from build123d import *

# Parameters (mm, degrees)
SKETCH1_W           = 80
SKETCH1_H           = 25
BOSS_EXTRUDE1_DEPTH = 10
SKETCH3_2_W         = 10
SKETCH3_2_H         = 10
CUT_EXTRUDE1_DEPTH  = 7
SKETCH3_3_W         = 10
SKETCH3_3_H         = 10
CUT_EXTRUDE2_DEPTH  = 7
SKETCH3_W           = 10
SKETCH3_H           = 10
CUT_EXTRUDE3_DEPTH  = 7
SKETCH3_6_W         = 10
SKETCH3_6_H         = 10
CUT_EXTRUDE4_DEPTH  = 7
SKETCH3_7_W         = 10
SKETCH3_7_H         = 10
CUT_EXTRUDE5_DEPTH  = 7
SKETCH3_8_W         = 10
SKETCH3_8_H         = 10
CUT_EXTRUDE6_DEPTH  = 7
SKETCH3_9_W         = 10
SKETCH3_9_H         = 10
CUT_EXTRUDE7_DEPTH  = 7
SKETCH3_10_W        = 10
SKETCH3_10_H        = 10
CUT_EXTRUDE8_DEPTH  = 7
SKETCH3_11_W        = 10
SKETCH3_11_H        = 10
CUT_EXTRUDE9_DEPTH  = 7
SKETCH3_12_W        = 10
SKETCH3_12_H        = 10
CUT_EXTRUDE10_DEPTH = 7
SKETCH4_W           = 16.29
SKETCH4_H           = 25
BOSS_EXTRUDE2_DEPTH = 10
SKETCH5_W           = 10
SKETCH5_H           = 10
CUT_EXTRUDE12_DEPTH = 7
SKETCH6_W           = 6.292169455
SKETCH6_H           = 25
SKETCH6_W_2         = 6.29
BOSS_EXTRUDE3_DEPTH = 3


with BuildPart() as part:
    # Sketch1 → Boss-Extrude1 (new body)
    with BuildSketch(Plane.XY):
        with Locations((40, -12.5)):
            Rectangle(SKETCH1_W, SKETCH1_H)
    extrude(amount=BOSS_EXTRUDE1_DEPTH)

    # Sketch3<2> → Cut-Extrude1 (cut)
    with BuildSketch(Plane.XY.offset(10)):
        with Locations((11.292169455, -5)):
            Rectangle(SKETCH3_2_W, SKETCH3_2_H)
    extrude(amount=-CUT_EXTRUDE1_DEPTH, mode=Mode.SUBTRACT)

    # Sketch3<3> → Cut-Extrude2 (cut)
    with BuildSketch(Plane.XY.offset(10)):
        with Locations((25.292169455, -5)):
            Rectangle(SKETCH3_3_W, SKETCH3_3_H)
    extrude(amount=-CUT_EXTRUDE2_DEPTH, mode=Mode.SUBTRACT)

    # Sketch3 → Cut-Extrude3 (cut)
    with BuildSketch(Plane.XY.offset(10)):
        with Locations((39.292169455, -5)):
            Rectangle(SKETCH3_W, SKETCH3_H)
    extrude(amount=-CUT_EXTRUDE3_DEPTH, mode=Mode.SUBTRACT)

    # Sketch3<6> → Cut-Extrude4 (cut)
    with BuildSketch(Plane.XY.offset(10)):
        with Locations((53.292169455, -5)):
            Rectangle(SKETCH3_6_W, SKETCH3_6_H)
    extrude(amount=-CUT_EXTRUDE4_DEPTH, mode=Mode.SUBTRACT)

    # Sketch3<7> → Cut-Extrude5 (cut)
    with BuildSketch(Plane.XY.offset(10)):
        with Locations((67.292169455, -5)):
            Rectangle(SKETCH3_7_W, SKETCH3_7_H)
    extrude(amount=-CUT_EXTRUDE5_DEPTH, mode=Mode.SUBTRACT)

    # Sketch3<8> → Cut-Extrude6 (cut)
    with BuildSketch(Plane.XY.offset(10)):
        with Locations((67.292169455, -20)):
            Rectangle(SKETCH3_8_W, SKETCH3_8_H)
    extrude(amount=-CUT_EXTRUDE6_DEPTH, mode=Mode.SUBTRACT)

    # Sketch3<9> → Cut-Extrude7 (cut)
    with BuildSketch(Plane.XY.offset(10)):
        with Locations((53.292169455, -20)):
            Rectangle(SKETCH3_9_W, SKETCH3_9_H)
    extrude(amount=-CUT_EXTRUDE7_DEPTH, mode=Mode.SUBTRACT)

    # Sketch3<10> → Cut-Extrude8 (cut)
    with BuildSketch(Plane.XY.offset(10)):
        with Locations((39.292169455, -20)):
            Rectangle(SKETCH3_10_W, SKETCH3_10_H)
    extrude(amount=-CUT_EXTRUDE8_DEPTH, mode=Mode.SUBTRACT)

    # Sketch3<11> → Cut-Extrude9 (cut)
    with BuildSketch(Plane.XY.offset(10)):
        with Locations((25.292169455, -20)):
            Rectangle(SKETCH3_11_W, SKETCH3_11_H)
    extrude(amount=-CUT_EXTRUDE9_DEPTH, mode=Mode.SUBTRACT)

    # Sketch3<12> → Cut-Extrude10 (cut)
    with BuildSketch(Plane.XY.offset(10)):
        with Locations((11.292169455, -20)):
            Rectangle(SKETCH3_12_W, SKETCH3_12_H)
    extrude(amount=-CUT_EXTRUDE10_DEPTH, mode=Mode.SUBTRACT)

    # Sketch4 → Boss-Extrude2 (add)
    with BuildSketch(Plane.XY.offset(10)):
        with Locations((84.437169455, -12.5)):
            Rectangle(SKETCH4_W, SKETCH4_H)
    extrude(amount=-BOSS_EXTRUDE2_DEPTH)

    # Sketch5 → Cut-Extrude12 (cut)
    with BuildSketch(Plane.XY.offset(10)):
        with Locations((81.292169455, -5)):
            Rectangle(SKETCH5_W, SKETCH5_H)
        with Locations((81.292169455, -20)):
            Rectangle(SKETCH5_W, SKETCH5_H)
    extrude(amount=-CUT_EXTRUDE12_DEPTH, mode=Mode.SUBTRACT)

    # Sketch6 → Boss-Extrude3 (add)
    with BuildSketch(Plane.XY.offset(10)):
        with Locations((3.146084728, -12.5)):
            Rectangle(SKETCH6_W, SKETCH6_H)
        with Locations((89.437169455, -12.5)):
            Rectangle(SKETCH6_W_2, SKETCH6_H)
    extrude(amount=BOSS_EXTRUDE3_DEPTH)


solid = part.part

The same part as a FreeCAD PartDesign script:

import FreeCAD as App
import Part
import Sketcher
Q = App.Units.Quantity


def add_polygon(sketch, points):
    """Adds a closed chain of lines whose ends are joined by coincident constraints."""
    first, n = sketch.GeometryCount, len(points)
    for a, b in zip(points, points[1:] + points[:1]):
        sketch.addGeometry(Part.LineSegment(App.Vector(*a, 0), App.Vector(*b, 0)), False)
    for i in range(n):
        sketch.addConstraint(Sketcher.Constraint("Coincident", first + i, 2, first + (i + 1) % n, 1))

doc = App.newDocument("Part")
body = doc.addObject("PartDesign::Body", "Body")

# Sketch on XY plane
sketch1 = doc.addObject("Sketcher::SketchObject", "Sketch")
body.addObject(sketch1)
sketch1.AttachmentSupport = (doc.XY_Plane, [""])
sketch1.MapMode = "FlatFace"
add_polygon(sketch1, [(0, 0), (0, -25), (80, -25), (80, 0)])  # lines 0-3
sketch1.addConstraint(Sketcher.Constraint("Vertical", 0))
sketch1.addConstraint(Sketcher.Constraint("Horizontal", 1))
sketch1.addConstraint(Sketcher.Constraint("Vertical", 2))
sketch1.addConstraint(Sketcher.Constraint("Horizontal", 3))
sketch1.addConstraint(Sketcher.Constraint("Coincident", 3, 2, -1, 1))
sketch1.addConstraint(Sketcher.Constraint("DistanceX", 1, 1, 1, 2, Q("80 mm")))
sketch1.addConstraint(Sketcher.Constraint("DistanceY", 0, 2, 0, 1, Q("25 mm")))
pad1 = doc.addObject("PartDesign::Pad", "Pad")
body.addObject(pad1)
pad1.Profile = sketch1
pad1.Length = 10

# Sketch on XY plane
sketch2 = doc.addObject("Sketcher::SketchObject", "Sketch001")
body.addObject(sketch2)
sketch2.AttachmentSupport = (doc.XY_Plane, [""])
sketch2.MapMode = "FlatFace"
sketch2.AttachmentOffset = App.Placement(App.Vector(0, 0, 10), App.Rotation())
add_polygon(sketch2, [(6, 0), (6, -10), (16, -10), (16, 0)])  # lines 0-3
sketch2.addConstraint(Sketcher.Constraint("Vertical", 0))
sketch2.addConstraint(Sketcher.Constraint("Horizontal", 1))
sketch2.addConstraint(Sketcher.Constraint("Vertical", 2))
sketch2.addConstraint(Sketcher.Constraint("Horizontal", 3))
sketch2.addConstraint(Sketcher.Constraint("PointOnObject", 2, 2, -1))
sketch2.addConstraint(Sketcher.Constraint("Equal", 3, 0))
sketch2.addConstraint(Sketcher.Constraint("DistanceX", 1, 1, 1, 2, Q("10 mm")))
sketch2.addConstraint(Sketcher.Constraint("DistanceX", -1, 1, 0, 2, Q("6.292169 mm")))
pocket1 = doc.addObject("PartDesign::Pocket", "Pocket")
body.addObject(pocket1)
pocket1.Profile = sketch2
pocket1.Length = 7

# Sketch on XY plane
sketch3 = doc.addObject("Sketcher::SketchObject", "Sketch002")
body.addObject(sketch3)
sketch3.AttachmentSupport = (doc.XY_Plane, [""])
sketch3.MapMode = "FlatFace"
sketch3.AttachmentOffset = App.Placement(App.Vector(0, 0, 10), App.Rotation())
add_polygon(sketch3, [(20, 0), (20, -10), (30, -10), (30, 0)])  # lines 0-3
sketch3.addConstraint(Sketcher.Constraint("Vertical", 0))
sketch3.addConstraint(Sketcher.Constraint("Horizontal", 1))
sketch3.addConstraint(Sketcher.Constraint("Vertical", 2))
sketch3.addConstraint(Sketcher.Constraint("Horizontal", 3))
sketch3.addConstraint(Sketcher.Constraint("PointOnObject", 2, 2, -1))
sketch3.addConstraint(Sketcher.Constraint("Equal", 3, 0))
sketch3.addConstraint(Sketcher.Constraint("DistanceX", 1, 1, 1, 2, Q("10 mm")))
sketch3.addConstraint(Sketcher.Constraint("DistanceX", -1, 1, 0, 2, Q("20.292169 mm")))
pocket2 = doc.addObject("PartDesign::Pocket", "Pocket001")
body.addObject(pocket2)
pocket2.Profile = sketch3
pocket2.Length = 7

# Sketch on XY plane
sketch4 = doc.addObject("Sketcher::SketchObject", "Sketch003")
body.addObject(sketch4)
sketch4.AttachmentSupport = (doc.XY_Plane, [""])
sketch4.MapMode = "FlatFace"
sketch4.AttachmentOffset = App.Placement(App.Vector(0, 0, 10), App.Rotation())
add_polygon(sketch4, [(34, 0), (34, -10), (44, -10), (44, 0)])  # lines 0-3
sketch4.addConstraint(Sketcher.Constraint("Vertical", 0))
sketch4.addConstraint(Sketcher.Constraint("Horizontal", 1))
sketch4.addConstraint(Sketcher.Constraint("Vertical", 2))
sketch4.addConstraint(Sketcher.Constraint("Horizontal", 3))
sketch4.addConstraint(Sketcher.Constraint("PointOnObject", 2, 2, -1))
sketch4.addConstraint(Sketcher.Constraint("Equal", 3, 0))
sketch4.addConstraint(Sketcher.Constraint("DistanceX", 1, 1, 1, 2, Q("10 mm")))
sketch4.addConstraint(Sketcher.Constraint("DistanceX", -1, 1, 0, 2, Q("34.292169 mm")))
pocket3 = doc.addObject("PartDesign::Pocket", "Pocket002")
body.addObject(pocket3)
pocket3.Profile = sketch4
pocket3.Length = 7

# Sketch on XY plane
sketch5 = doc.addObject("Sketcher::SketchObject", "Sketch004")
body.addObject(sketch5)
sketch5.AttachmentSupport = (doc.XY_Plane, [""])
sketch5.MapMode = "FlatFace"
sketch5.AttachmentOffset = App.Placement(App.Vector(0, 0, 10), App.Rotation())
add_polygon(sketch5, [(48, 0), (48, -10), (58, -10), (58, 0)])  # lines 0-3
sketch5.addConstraint(Sketcher.Constraint("Vertical", 0))
sketch5.addConstraint(Sketcher.Constraint("Horizontal", 1))
sketch5.addConstraint(Sketcher.Constraint("Vertical", 2))
sketch5.addConstraint(Sketcher.Constraint("Horizontal", 3))
sketch5.addConstraint(Sketcher.Constraint("PointOnObject", 2, 2, -1))
sketch5.addConstraint(Sketcher.Constraint("Equal", 3, 0))
sketch5.addConstraint(Sketcher.Constraint("DistanceX", 1, 1, 1, 2, Q("10 mm")))
sketch5.addConstraint(Sketcher.Constraint("DistanceX", -1, 1, 0, 2, Q("48.292169 mm")))
pocket4 = doc.addObject("PartDesign::Pocket", "Pocket003")
body.addObject(pocket4)
pocket4.Profile = sketch5
pocket4.Length = 7

# Sketch on XY plane
sketch6 = doc.addObject("Sketcher::SketchObject", "Sketch005")
body.addObject(sketch6)
sketch6.AttachmentSupport = (doc.XY_Plane, [""])
sketch6.MapMode = "FlatFace"
sketch6.AttachmentOffset = App.Placement(App.Vector(0, 0, 10), App.Rotation())
add_polygon(sketch6, [(62, 0), (62, -10), (72, -10), (72, 0)])  # lines 0-3
sketch6.addConstraint(Sketcher.Constraint("Vertical", 0))
sketch6.addConstraint(Sketcher.Constraint("Horizontal", 1))
sketch6.addConstraint(Sketcher.Constraint("Vertical", 2))
sketch6.addConstraint(Sketcher.Constraint("Horizontal", 3))
sketch6.addConstraint(Sketcher.Constraint("PointOnObject", 2, 2, -1))
sketch6.addConstraint(Sketcher.Constraint("Equal", 3, 0))
sketch6.addConstraint(Sketcher.Constraint("DistanceX", 1, 1, 1, 2, Q("10 mm")))
sketch6.addConstraint(Sketcher.Constraint("DistanceX", -1, 1, 0, 2, Q("62.292169 mm")))
pocket5 = doc.addObject("PartDesign::Pocket", "Pocket004")
body.addObject(pocket5)
pocket5.Profile = sketch6
pocket5.Length = 7

# Sketch on XY plane
sketch7 = doc.addObject("Sketcher::SketchObject", "Sketch006")
body.addObject(sketch7)
sketch7.AttachmentSupport = (doc.XY_Plane, [""])
sketch7.MapMode = "FlatFace"
sketch7.AttachmentOffset = App.Placement(App.Vector(0, 0, 10), App.Rotation())
add_polygon(sketch7, [(62, -15), (62, -25), (72, -25), (72, -15)])  # lines 0-3
sketch7.addConstraint(Sketcher.Constraint("Vertical", 0))
sketch7.addConstraint(Sketcher.Constraint("Horizontal", 1))
sketch7.addConstraint(Sketcher.Constraint("Vertical", 2))
sketch7.addConstraint(Sketcher.Constraint("Horizontal", 3))
sketch7.addConstraint(Sketcher.Constraint("Equal", 3, 0))
sketch7.addConstraint(Sketcher.Constraint("DistanceX", 1, 1, 1, 2, Q("10 mm")))
sketch7.addConstraint(Sketcher.Constraint("DistanceY", 0, 2, -1, 1, Q("25 mm")))
sketch7.addConstraint(Sketcher.Constraint("DistanceX", -1, 1, 0, 2, Q("62.292169 mm")))
pocket6 = doc.addObject("PartDesign::Pocket", "Pocket005")
body.addObject(pocket6)
pocket6.Profile = sketch7
pocket6.Length = 7

# Sketch on XY plane
sketch8 = doc.addObject("Sketcher::SketchObject", "Sketch007")
body.addObject(sketch8)
sketch8.AttachmentSupport = (doc.XY_Plane, [""])
sketch8.MapMode = "FlatFace"
sketch8.AttachmentOffset = App.Placement(App.Vector(0, 0, 10), App.Rotation())
add_polygon(sketch8, [(48, -15), (48, -25), (58, -25), (58, -15)])  # lines 0-3
sketch8.addConstraint(Sketcher.Constraint("Vertical", 0))
sketch8.addConstraint(Sketcher.Constraint("Horizontal", 1))
sketch8.addConstraint(Sketcher.Constraint("Vertical", 2))
sketch8.addConstraint(Sketcher.Constraint("Horizontal", 3))
sketch8.addConstraint(Sketcher.Constraint("Equal", 3, 0))
sketch8.addConstraint(Sketcher.Constraint("DistanceX", 1, 1, 1, 2, Q("10 mm")))
sketch8.addConstraint(Sketcher.Constraint("DistanceY", 0, 2, -1, 1, Q("25 mm")))
sketch8.addConstraint(Sketcher.Constraint("DistanceX", -1, 1, 0, 2, Q("48.292169 mm")))
pocket7 = doc.addObject("PartDesign::Pocket", "Pocket006")
body.addObject(pocket7)
pocket7.Profile = sketch8
pocket7.Length = 7

# Sketch on XY plane
sketch9 = doc.addObject("Sketcher::SketchObject", "Sketch008")
body.addObject(sketch9)
sketch9.AttachmentSupport = (doc.XY_Plane, [""])
sketch9.MapMode = "FlatFace"
sketch9.AttachmentOffset = App.Placement(App.Vector(0, 0, 10), App.Rotation())
add_polygon(sketch9, [(34, -15), (34, -25), (44, -25), (44, -15)])  # lines 0-3
sketch9.addConstraint(Sketcher.Constraint("Vertical", 0))
sketch9.addConstraint(Sketcher.Constraint("Horizontal", 1))
sketch9.addConstraint(Sketcher.Constraint("Vertical", 2))
sketch9.addConstraint(Sketcher.Constraint("Horizontal", 3))
sketch9.addConstraint(Sketcher.Constraint("Equal", 3, 0))
sketch9.addConstraint(Sketcher.Constraint("DistanceX", 1, 1, 1, 2, Q("10 mm")))
sketch9.addConstraint(Sketcher.Constraint("DistanceY", 0, 2, -1, 1, Q("25 mm")))
sketch9.addConstraint(Sketcher.Constraint("DistanceX", -1, 1, 0, 2, Q("34.292169 mm")))
pocket8 = doc.addObject("PartDesign::Pocket", "Pocket007")
body.addObject(pocket8)
pocket8.Profile = sketch9
pocket8.Length = 7

# Sketch on XY plane
sketch10 = doc.addObject("Sketcher::SketchObject", "Sketch009")
body.addObject(sketch10)
sketch10.AttachmentSupport = (doc.XY_Plane, [""])
sketch10.MapMode = "FlatFace"
sketch10.AttachmentOffset = App.Placement(App.Vector(0, 0, 10), App.Rotation())
add_polygon(sketch10, [(20, -15), (20, -25), (30, -25), (30, -15)])  # lines 0-3
sketch10.addConstraint(Sketcher.Constraint("Vertical", 0))
sketch10.addConstraint(Sketcher.Constraint("Horizontal", 1))
sketch10.addConstraint(Sketcher.Constraint("Vertical", 2))
sketch10.addConstraint(Sketcher.Constraint("Horizontal", 3))
sketch10.addConstraint(Sketcher.Constraint("Equal", 3, 0))
sketch10.addConstraint(Sketcher.Constraint("DistanceX", 1, 1, 1, 2, Q("10 mm")))
sketch10.addConstraint(Sketcher.Constraint("DistanceY", 0, 2, -1, 1, Q("25 mm")))
sketch10.addConstraint(Sketcher.Constraint("DistanceX", -1, 1, 0, 2, Q("20.292169 mm")))
pocket9 = doc.addObject("PartDesign::Pocket", "Pocket008")
body.addObject(pocket9)
pocket9.Profile = sketch10
pocket9.Length = 7

# Sketch on XY plane
sketch11 = doc.addObject("Sketcher::SketchObject", "Sketch010")
body.addObject(sketch11)
sketch11.AttachmentSupport = (doc.XY_Plane, [""])
sketch11.MapMode = "FlatFace"
sketch11.AttachmentOffset = App.Placement(App.Vector(0, 0, 10), App.Rotation())
add_polygon(sketch11, [(6, -15), (6, -25), (16, -25), (16, -15)])  # lines 0-3
sketch11.addConstraint(Sketcher.Constraint("Vertical", 0))
sketch11.addConstraint(Sketcher.Constraint("Horizontal", 1))
sketch11.addConstraint(Sketcher.Constraint("Vertical", 2))
sketch11.addConstraint(Sketcher.Constraint("Horizontal", 3))
sketch11.addConstraint(Sketcher.Constraint("Equal", 3, 0))
sketch11.addConstraint(Sketcher.Constraint("DistanceX", 1, 1, 1, 2, Q("10 mm")))
sketch11.addConstraint(Sketcher.Constraint("DistanceY", 0, 2, -1, 1, Q("25 mm")))
sketch11.addConstraint(Sketcher.Constraint("DistanceX", -1, 1, 0, 2, Q("6.292169 mm")))
pocket10 = doc.addObject("PartDesign::Pocket", "Pocket009")
body.addObject(pocket10)
pocket10.Profile = sketch11
pocket10.Length = 7

# Sketch on XY plane
sketch12 = doc.addObject("Sketcher::SketchObject", "Sketch011")
body.addObject(sketch12)
sketch12.AttachmentSupport = (doc.XY_Plane, [""])
sketch12.MapMode = "FlatFace"
sketch12.AttachmentOffset = App.Placement(App.Vector(0, 0, 10), App.Rotation())
add_polygon(sketch12, [(76, 0), (76, -25), (93, -25), (93, 0)])  # lines 0-3
sketch12.addConstraint(Sketcher.Constraint("Vertical", 0))
sketch12.addConstraint(Sketcher.Constraint("Horizontal", 1))
sketch12.addConstraint(Sketcher.Constraint("Vertical", 2))
sketch12.addConstraint(Sketcher.Constraint("Horizontal", 3))
sketch12.addConstraint(Sketcher.Constraint("PointOnObject", 2, 2, -1))
sketch12.addConstraint(Sketcher.Constraint("DistanceY", 0, 2, 0, 1, Q("25 mm")))
sketch12.addConstraint(Sketcher.Constraint("DistanceX", 1, 1, 1, 2, Q("16.29 mm")))
sketch12.addConstraint(Sketcher.Constraint("DistanceX", -1, 1, 0, 2, Q("76.292169 mm")))
pad2 = doc.addObject("PartDesign::Pad", "Pad001")
body.addObject(pad2)
pad2.Profile = sketch12
pad2.Length = 10
pad2.Reversed = True

# Sketch on XY plane
sketch13 = doc.addObject("Sketcher::SketchObject", "Sketch012")
body.addObject(sketch13)
sketch13.AttachmentSupport = (doc.XY_Plane, [""])
sketch13.MapMode = "FlatFace"
sketch13.AttachmentOffset = App.Placement(App.Vector(0, 0, 10), App.Rotation())
add_polygon(sketch13, [(76, 0), (76, -10), (86, -10), (86, 0)])  # lines 0-3
add_polygon(sketch13, [(76, -15), (76, -25), (86, -25), (86, -15)])  # lines 4-7
sketch13.addConstraint(Sketcher.Constraint("Vertical", 0))
sketch13.addConstraint(Sketcher.Constraint("Horizontal", 1))
sketch13.addConstraint(Sketcher.Constraint("Vertical", 2))
sketch13.addConstraint(Sketcher.Constraint("Horizontal", 3))
sketch13.addConstraint(Sketcher.Constraint("Vertical", 4))
sketch13.addConstraint(Sketcher.Constraint("Horizontal", 5))
sketch13.addConstraint(Sketcher.Constraint("Vertical", 6))
sketch13.addConstraint(Sketcher.Constraint("Horizontal", 7))
sketch13.addConstraint(Sketcher.Constraint("PointOnObject", 2, 2, -1))
sketch13.addConstraint(Sketcher.Constraint("Vertical", 3, 2, 4, 2))
sketch13.addConstraint(Sketcher.Constraint("Vertical", 2, 2, 5, 2))
sketch13.addConstraint(Sketcher.Constraint("Equal", 7, 0))
sketch13.addConstraint(Sketcher.Constraint("Equal", 2, 4))
sketch13.addConstraint(Sketcher.Constraint("DistanceX", 1, 1, 1, 2, Q("10 mm")))
sketch13.addConstraint(Sketcher.Constraint("DistanceY", 4, 2, -1, 1, Q("25 mm")))
sketch13.addConstraint(Sketcher.Constraint("DistanceX", -1, 1, 0, 2, Q("76.292169 mm")))
pocket11 = doc.addObject("PartDesign::Pocket", "Pocket010")
body.addObject(pocket11)
pocket11.Profile = sketch13
pocket11.Length = 7

# Sketch on XY plane
sketch14 = doc.addObject("Sketcher::SketchObject", "Sketch013")
body.addObject(sketch14)
sketch14.AttachmentSupport = (doc.XY_Plane, [""])
sketch14.MapMode = "FlatFace"
sketch14.AttachmentOffset = App.Placement(App.Vector(0, 0, 10), App.Rotation())
add_polygon(sketch14, [(0, 0), (0, -25), (6, -25), (6, 0)])  # lines 0-3
add_polygon(sketch14, [(86, 0), (86, -25), (93, -25), (93, 0)])  # lines 4-7
sketch14.addConstraint(Sketcher.Constraint("Vertical", 0))
sketch14.addConstraint(Sketcher.Constraint("Horizontal", 1))
sketch14.addConstraint(Sketcher.Constraint("Vertical", 2))
sketch14.addConstraint(Sketcher.Constraint("Horizontal", 3))
sketch14.addConstraint(Sketcher.Constraint("Vertical", 4))
sketch14.addConstraint(Sketcher.Constraint("Horizontal", 5))
sketch14.addConstraint(Sketcher.Constraint("Vertical", 6))
sketch14.addConstraint(Sketcher.Constraint("Horizontal", 7))
sketch14.addConstraint(Sketcher.Constraint("Coincident", 3, 2, -1, 1))
sketch14.addConstraint(Sketcher.Constraint("PointOnObject", 6, 2, -1))
sketch14.addConstraint(Sketcher.Constraint("Horizontal", 1, 2, 4, 2))
sketch14.addConstraint(Sketcher.Constraint("DistanceY", 0, 2, 0, 1, Q("25 mm")))
sketch14.addConstraint(Sketcher.Constraint("DistanceX", 1, 2, 4, 2, Q("80 mm")))
sketch14.addConstraint(Sketcher.Constraint("DistanceX", 5, 1, 5, 2, Q("6.29 mm")))
sketch14.addConstraint(Sketcher.Constraint("DistanceX", 1, 1, 1, 2, Q("6.292169 mm")))
pad3 = doc.addObject("PartDesign::Pad", "Pad002")
body.addObject(pad3)
pad3.Profile = sketch14
pad3.Length = 3

doc.recompute()
